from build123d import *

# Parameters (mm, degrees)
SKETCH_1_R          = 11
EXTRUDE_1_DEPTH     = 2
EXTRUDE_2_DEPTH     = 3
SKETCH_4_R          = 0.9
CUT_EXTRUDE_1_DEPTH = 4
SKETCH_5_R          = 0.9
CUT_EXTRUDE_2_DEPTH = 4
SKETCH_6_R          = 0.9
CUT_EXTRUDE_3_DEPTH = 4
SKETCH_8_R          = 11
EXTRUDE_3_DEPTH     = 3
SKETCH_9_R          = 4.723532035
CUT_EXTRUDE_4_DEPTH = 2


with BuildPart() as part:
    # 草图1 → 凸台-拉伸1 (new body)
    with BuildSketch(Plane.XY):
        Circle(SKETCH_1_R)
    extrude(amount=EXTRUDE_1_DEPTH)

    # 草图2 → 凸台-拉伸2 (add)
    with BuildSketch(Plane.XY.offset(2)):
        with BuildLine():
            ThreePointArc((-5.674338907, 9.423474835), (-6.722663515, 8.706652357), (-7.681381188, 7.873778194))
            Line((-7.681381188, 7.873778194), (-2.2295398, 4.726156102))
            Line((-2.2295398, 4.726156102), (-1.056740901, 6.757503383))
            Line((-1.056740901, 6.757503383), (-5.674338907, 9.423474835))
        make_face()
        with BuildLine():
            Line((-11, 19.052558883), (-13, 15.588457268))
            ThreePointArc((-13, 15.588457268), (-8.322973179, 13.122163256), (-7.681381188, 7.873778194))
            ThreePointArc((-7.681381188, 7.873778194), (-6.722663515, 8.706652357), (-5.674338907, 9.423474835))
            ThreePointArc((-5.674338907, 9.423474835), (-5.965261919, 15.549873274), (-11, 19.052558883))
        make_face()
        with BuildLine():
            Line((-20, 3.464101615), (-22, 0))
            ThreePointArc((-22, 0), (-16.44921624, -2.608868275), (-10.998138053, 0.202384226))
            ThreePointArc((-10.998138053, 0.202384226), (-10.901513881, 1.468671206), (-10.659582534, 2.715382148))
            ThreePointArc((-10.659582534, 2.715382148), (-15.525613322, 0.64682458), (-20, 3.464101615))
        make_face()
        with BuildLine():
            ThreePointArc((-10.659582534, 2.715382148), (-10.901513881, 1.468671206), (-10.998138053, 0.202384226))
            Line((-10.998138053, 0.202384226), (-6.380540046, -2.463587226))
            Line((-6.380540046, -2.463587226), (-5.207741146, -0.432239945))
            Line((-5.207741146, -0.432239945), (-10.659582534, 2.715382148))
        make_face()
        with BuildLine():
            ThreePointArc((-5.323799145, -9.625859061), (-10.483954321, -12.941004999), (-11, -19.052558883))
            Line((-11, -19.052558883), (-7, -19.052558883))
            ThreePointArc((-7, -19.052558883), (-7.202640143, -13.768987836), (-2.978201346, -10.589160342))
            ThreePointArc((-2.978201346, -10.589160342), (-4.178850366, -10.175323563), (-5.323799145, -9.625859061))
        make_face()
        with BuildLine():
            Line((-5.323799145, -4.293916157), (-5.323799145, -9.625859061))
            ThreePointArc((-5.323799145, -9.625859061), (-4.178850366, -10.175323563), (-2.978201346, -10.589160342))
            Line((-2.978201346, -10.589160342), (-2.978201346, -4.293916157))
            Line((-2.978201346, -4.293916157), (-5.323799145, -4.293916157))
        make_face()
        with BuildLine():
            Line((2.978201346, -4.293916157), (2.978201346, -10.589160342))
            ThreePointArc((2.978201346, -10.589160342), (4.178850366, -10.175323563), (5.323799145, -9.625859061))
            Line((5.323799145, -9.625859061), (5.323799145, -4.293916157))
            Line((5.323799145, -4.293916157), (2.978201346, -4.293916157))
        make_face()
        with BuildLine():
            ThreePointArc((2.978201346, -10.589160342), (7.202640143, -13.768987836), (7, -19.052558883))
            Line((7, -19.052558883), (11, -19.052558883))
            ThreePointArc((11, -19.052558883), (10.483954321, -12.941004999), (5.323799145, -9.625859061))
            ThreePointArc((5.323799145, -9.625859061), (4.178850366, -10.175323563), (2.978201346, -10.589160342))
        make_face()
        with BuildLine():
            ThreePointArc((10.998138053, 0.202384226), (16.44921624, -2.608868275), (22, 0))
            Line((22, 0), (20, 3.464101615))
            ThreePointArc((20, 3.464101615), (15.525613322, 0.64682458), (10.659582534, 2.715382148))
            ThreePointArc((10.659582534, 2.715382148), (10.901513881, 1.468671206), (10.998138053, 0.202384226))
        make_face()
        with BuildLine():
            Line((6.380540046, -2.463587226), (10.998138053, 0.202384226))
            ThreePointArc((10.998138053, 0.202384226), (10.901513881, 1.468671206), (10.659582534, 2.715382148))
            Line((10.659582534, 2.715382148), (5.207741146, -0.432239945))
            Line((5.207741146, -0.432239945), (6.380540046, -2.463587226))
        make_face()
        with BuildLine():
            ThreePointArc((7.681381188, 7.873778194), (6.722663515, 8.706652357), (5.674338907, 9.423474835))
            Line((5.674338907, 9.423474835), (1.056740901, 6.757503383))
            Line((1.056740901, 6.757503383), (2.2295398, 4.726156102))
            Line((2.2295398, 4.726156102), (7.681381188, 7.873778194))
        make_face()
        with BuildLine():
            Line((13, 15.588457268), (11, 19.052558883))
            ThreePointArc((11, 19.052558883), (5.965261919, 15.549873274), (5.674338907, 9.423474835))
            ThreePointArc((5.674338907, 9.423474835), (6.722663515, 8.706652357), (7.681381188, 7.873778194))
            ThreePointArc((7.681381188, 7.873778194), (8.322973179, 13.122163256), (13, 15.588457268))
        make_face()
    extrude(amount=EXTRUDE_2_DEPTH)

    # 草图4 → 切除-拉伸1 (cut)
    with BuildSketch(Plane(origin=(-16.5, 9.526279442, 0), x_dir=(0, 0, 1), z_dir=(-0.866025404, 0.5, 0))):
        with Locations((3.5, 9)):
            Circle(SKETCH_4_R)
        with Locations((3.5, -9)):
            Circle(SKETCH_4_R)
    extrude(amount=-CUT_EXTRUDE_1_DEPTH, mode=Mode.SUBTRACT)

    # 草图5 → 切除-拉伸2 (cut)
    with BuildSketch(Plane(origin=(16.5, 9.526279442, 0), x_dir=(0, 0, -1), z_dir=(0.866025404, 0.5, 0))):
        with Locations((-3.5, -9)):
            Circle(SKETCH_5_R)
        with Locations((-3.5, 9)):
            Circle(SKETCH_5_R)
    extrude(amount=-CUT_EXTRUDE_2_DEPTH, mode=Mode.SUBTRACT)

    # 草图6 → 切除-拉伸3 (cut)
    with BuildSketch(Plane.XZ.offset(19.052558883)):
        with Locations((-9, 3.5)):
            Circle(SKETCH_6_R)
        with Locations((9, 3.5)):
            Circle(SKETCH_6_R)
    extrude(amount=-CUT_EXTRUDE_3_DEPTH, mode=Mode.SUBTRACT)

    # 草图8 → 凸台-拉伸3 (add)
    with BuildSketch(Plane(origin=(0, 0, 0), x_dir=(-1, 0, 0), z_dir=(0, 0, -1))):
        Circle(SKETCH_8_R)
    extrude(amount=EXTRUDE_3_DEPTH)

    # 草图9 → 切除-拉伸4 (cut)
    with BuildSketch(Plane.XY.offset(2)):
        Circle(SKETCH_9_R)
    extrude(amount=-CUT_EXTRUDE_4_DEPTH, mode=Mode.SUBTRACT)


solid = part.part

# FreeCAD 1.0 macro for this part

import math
import FreeCAD as App
import Part
import Sketcher
Q = App.Units.Quantity

doc = App.newDocument("Part")
body = doc.addObject("PartDesign::Body", "Body")

sketch1 = body.newObject("Sketcher::SketchObject", "Sketch")
sketch1.AttachmentSupport = (doc.getObject("XY_Plane"), [""])
sketch1.MapMode = "FlatFace"
sketch1.addGeometry(Part.Circle(App.Vector(0, 0, 0), App.Vector(0, 0, 1), 11), False)
sketch1.addConstraint(Sketcher.Constraint("Coincident", 0, 3, -1, 1))
sketch1.addConstraint(Sketcher.Constraint("Diameter", 0, 22.0))
pad1 = body.newObject("PartDesign::Pad", "Pad")
pad1.Profile = sketch1
pad1.Length = 2

sketch2 = body.newObject("Sketcher::SketchObject", "Sketch001")
sketch2.AttachmentSupport = (doc.getObject("XY_Plane"), [""])
sketch2.MapMode = "FlatFace"
sketch2.AttachmentOffset = App.Placement(App.Vector(0, 0, 2), App.Rotation())
sketch2.addGeometry(Part.LineSegment(App.Vector(-7.7, 7.9, 0), App.Vector(-2.2, 4.7, 0)), False)
sketch2.addGeometry(Part.LineSegment(App.Vector(-2.2, 4.7, 0), App.Vector(-1.1, 6.8, 0)), False)
sketch2.addGeometry(Part.LineSegment(App.Vector(-1.1, 6.8, 0), App.Vector(-5.7, 9.4, 0)), False)
sketch2.addGeometry(Part.ArcOfCircle(Part.Circle(App.Vector(-12, 12.2, 0), App.Vector(0, 0, 1), 6.9), math.radians(-24), math.radians(81)), False)
sketch2.addGeometry(Part.LineSegment(App.Vector(-11, 19.1, 0), App.Vector(-13, 15.6, 0)), False)
sketch2.addGeometry(Part.ArcOfCircle(Part.Circle(App.Vector(-13, 9.9, 0), App.Vector(0, 0, 1), 5.7), math.radians(-21), math.radians(90)), False)
sketch2.addGeometry(Part.LineSegment(App.Vector(-20, 3.5, 0), App.Vector(-22, 0, 0)), False)
sketch2.addGeometry(Part.ArcOfCircle(Part.Circle(App.Vector(-16.6, 4.3, 0), App.Vector(0, 0, 1), 6.9), math.radians(-141), math.radians(-36)), False)
sketch2.addGeometry(Part.LineSegment(App.Vector(-11, 0.2, 0), App.Vector(-6.4, -2.5, 0)), False)
sketch2.addGeometry(Part.LineSegment(App.Vector(-6.4, -2.5, 0), App.Vector(-5.2, -0.4, 0)), False)
sketch2.addGeometry(Part.LineSegment(App.Vector(-5.2, -0.4, 0), App.Vector(-10.7, 2.7, 0)), False)
sketch2.addGeometry(Part.ArcOfCircle(Part.Circle(App.Vector(-15.1, 6.3, 0), App.Vector(0, 0, 1), 5.7), math.radians(-150), math.radians(-39)), False)
sketch2.addGeometry(Part.ArcOfCircle(Part.Circle(App.Vector(-4.5, -16.5, 0), App.Vector(0, 0, 1), 6.9), math.radians(96), math.radians(201)), False)
sketch2.addGeometry(Part.LineSegment(App.Vector(-11, -19.1, 0), App.Vector(-7, -19.1, 0)), False)
sketch2.addGeometry(Part.ArcOfCircle(Part.Circle(App.Vector(-2.1, -16.2, 0), App.Vector(0, 0, 1), 5.7), math.radians(99), math.radians(210)), False)
sketch2.addGeometry(Part.LineSegment(App.Vector(-3, -10.6, 0), App.Vector(-3, -4.3, 0)), False)
sketch2.addGeometry(Part.LineSegment(App.Vector(-3, -4.3, 0), App.Vector(-5.3, -4.3, 0)), False)
sketch2.addGeometry(Part.LineSegment(App.Vector(-5.3, -4.3, 0), App.Vector(-5.3, -9.6, 0)), False)
sketch2.addGeometry(Part.LineSegment(App.Vector(3, -4.3, 0), App.Vector(3, -10.6, 0)), False)
sketch2.addGeometry(Part.ArcOfCircle(Part.Circle(App.Vector(2.1, -16.2, 0), App.Vector(0, 0, 1), 5.7), math.radians(-30), math.radians(81)), False)
sketch2.addGeometry(Part.LineSegment(App.Vector(7, -19.1, 0), App.Vector(11, -19.1, 0)), False)
sketch2.addGeometry(Part.ArcOfCircle(Part.Circle(App.Vector(4.5, -16.5, 0), App.Vector(0, 0, 1), 6.9), math.radians(-21), math.radians(84)), False)
sketch2.addGeometry(Part.LineSegment(App.Vector(5.3, -9.6, 0), App.Vector(5.3, -4.3, 0)), False)
sketch2.addGeometry(Part.LineSegment(App.Vector(5.3, -4.3, 0), App.Vector(3, -4.3, 0)), False)
sketch2.addGeometry(Part.ArcOfCircle(Part.Circle(App.Vector(16.6, 4.3, 0), App.Vector(0, 0, 1), 6.9), math.radians(-144), math.radians(-39)), False)
sketch2.addGeometry(Part.LineSegment(App.Vector(22, 0, 0), App.Vector(20, 3.5, 0)), False)
sketch2.addGeometry(Part.ArcOfCircle(Part.Circle(App.Vector(15.1, 6.3, 0), App.Vector(0, 0, 1), 5.7), math.radians(-141), math.radians(-30)), False)
sketch2.addGeometry(Part.LineSegment(App.Vector(10.7, 2.7, 0), App.Vector(5.2, -0.4, 0)), False)
sketch2.addGeometry(Part.LineSegment(App.Vector(5.2, -0.4, 0), App.Vector(6.4, -2.5, 0)), False)
sketch2.addGeometry(Part.LineSegment(App.Vector(6.4, -2.5, 0), App.Vector(11, 0.2, 0)), False)
sketch2.addGeometry(Part.LineSegment(App.Vector(5.7, 9.4, 0), App.Vector(1.1, 6.8, 0)), False)
sketch2.addGeometry(Part.LineSegment(App.Vector(1.1, 6.8, 0), App.Vector(2.2, 4.7, 0)), False)
sketch2.addGeometry(Part.LineSegment(App.Vector(2.2, 4.7, 0), App.Vector(7.7, 7.9, 0)), False)
sketch2.addGeometry(Part.ArcOfCircle(Part.Circle(App.Vector(13, 9.9, 0), App.Vector(0, 0, 1), 5.7), math.radians(90), math.radians(201)), False)
sketch2.addGeometry(Part.LineSegment(App.Vector(13, 15.6, 0), App.Vector(11, 19.1, 0)), False)
sketch2.addGeometry(Part.ArcOfCircle(Part.Circle(App.Vector(12, 12.2, 0), App.Vector(0, 0, 1), 6.9), math.radians(99), math.radians(204)), False)
sketch2.addConstraint(Sketcher.Constraint("Coincident", 0, 2, 1, 1))
sketch2.addConstraint(Sketcher.Constraint("Coincident", 1, 2, 2, 1))
sketch2.addConstraint(Sketcher.Constraint("Coincident", 2, 2, 3, 1))
sketch2.addConstraint(Sketcher.Constraint("Coincident", 3, 2, 4, 1))
sketch2.addConstraint(Sketcher.Constraint("Coincident", 4, 2, 5, 2))
sketch2.addConstraint(Sketcher.Constraint("Coincident", 5, 1, 0, 1))
sketch2.addConstraint(Sketcher.Constraint("Coincident", 6, 2, 7, 1))
sketch2.addConstraint(Sketcher.Constraint("Coincident", 7, 2, 8, 1))
sketch2.addConstraint(Sketcher.Constraint("Coincident", 8, 2, 9, 1))
sketch2.addConstraint(Sketcher.Constraint("Coincident", 9, 2, 10, 1))
sketch2.addConstraint(Sketcher.Constraint("Coincident", 10, 2, 11, 2))
sketch2.addConstraint(Sketcher.Constraint("Coincident", 11, 1, 6, 1))
sketch2.addConstraint(Sketcher.Constraint("Coincident", 12, 2, 13, 1))
sketch2.addConstraint(Sketcher.Constraint("Coincident", 13, 2, 14, 2))
sketch2.addConstraint(Sketcher.Constraint("Coincident", 14, 1, 15, 1))
sketch2.addConstraint(Sketcher.Constraint("Coincident", 15, 2, 16, 1))
sketch2.addConstraint(Sketcher.Constraint("Coincident", 16, 2, 17, 1))
sketch2.addConstraint(Sketcher.Constraint("Coincident", 17, 2, 12, 1))
sketch2.addConstraint(Sketcher.Constraint("Coincident", 18, 2, 19, 2))
sketch2.addConstraint(Sketcher.Constraint("Coincident", 19, 1, 20, 1))
sketch2.addConstraint(Sketcher.Constraint("Coincident", 20, 2, 21, 1))
sketch2.addConstraint(Sketcher.Constraint("Coincident", 21, 2, 22, 1))
sketch2.addConstraint(Sketcher.Constraint("Coincident", 22, 2, 23, 1))
sketch2.addConstraint(Sketcher.Constraint("Coincident", 23, 2, 18, 1))
sketch2.addConstraint(Sketcher.Constraint("Coincident", 24, 2, 25, 1))
sketch2.addConstraint(Sketcher.Constraint("Coincident", 25, 2, 26, 2))
sketch2.addConstraint(Sketcher.Constraint("Coincident", 26, 1, 27, 1))
sketch2.addConstraint(Sketcher.Constraint("Coincident", 27, 2, 28, 1))
sketch2.addConstraint(Sketcher.Constraint("Coincident", 28, 2, 29, 1))
sketch2.addConstraint(Sketcher.Constraint("Coincident", 29, 2, 24, 1))
sketch2.addConstraint(Sketcher.Constraint("Coincident", 30, 2, 31, 1))
sketch2.addConstraint(Sketcher.Constraint("Coincident", 31, 2, 32, 1))
sketch2.addConstraint(Sketcher.Constraint("Coincident", 32, 2, 33, 2))
sketch2.addConstraint(Sketcher.Constraint("Coincident", 33, 1, 34, 1))
sketch2.addConstraint(Sketcher.Constraint("Coincident", 34, 2, 35, 1))
sketch2.addConstraint(Sketcher.Constraint("Coincident", 35, 2, 30, 1))
sketch2.addConstraint(Sketcher.Constraint("Horizontal", 13))
sketch2.addConstraint(Sketcher.Constraint("Vertical", 15))
sketch2.addConstraint(Sketcher.Constraint("Horizontal", 16))
sketch2.addConstraint(Sketcher.Constraint("Vertical", 17))
sketch2.addConstraint(Sketcher.Constraint("Vertical", 18))
sketch2.addConstraint(Sketcher.Constraint("Horizontal", 20))
sketch2.addConstraint(Sketcher.Constraint("Vertical", 22))
sketch2.addConstraint(Sketcher.Constraint("Horizontal", 23))
sketch2.addConstraint(Sketcher.Constraint("Equal", 3, 7))
sketch2.addConstraint(Sketcher.Constraint("Equal", 5, 11))
sketch2.addConstraint(Sketcher.Constraint("Equal", 7, 12))
sketch2.addConstraint(Sketcher.Constraint("Equal", 11, 14))
sketch2.addConstraint(Sketcher.Constraint("Equal", 14, 19))
sketch2.addConstraint(Sketcher.Constraint("Equal", 12, 21))
sketch2.addConstraint(Sketcher.Constraint("Equal", 21, 24))
sketch2.addConstraint(Sketcher.Constraint("Equal", 19, 26))
sketch2.addConstraint(Sketcher.Constraint("Equal", 26, 33))
sketch2.addConstraint(Sketcher.Constraint("Equal", 24, 35))
sketch2.addConstraint(Sketcher.Constraint("Symmetric", 3, 2, 20, 2, -1, 1))
sketch2.addConstraint(Sketcher.Constraint("Symmetric", 6, 2, 24, 2, -1, 1))
sketch2.addConstraint(Sketcher.Constraint("Symmetric", 12, 2, 34, 2, -1, 1))
sketch2.addConstraint(Sketcher.Constraint("Symmetric", 14, 3, 19, 3, -2))
sketch2.addConstraint(Sketcher.Constraint("Symmetric", 12, 3, 21, 3, -2))
sketch2.addConstraint(Sketcher.Constraint("Symmetric", 7, 3, 24, 3, -2))
sketch2.addConstraint(Sketcher.Constraint("Symmetric", 11, 3, 26, 3, -2))
sketch2.addConstraint(Sketcher.Constraint("Symmetric", 5, 3, 33, 3, -2))
sketch2.addConstraint(Sketcher.Constraint("Symmetric", 3, 3, 35, 3, -2))
sketch2.addConstraint(Sketcher.Constraint("Symmetric", 16, 2, 22, 2, -2))
sketch2.addConstraint(Sketcher.Constraint("Symmetric", 9, 2, 27, 2, -2))
sketch2.addConstraint(Sketcher.Constraint("Symmetric", 8, 2, 28, 2, -2))
sketch2.addConstraint(Sketcher.Constraint("Symmetric", 1, 2, 30, 2, -2))
sketch2.addConstraint(Sketcher.Constraint("Symmetric", 0, 2, 31, 2, -2))
sketch2.addConstraint(Sketcher.Constraint("Perpendicular", 0, 1))
sketch2.addConstraint(Sketcher.Constraint("Perpendicular", 1, 2))
sketch2.addConstraint(Sketcher.Constraint("Perpendicular", 2, 4))
sketch2.addConstraint(Sketcher.Constraint("Parallel", 4, 6))
sketch2.addConstraint(Sketcher.Constraint("Perpendicular", 6, 8))
sketch2.addConstraint(Sketcher.Constraint("Perpendicular", 8, 9))
sketch2.addConstraint(Sketcher.Constraint("Perpendicular", 9, 10))
sketch2.addConstraint(Sketcher.Constraint("Perpendicular", 25, 27))
sketch2.addConstraint(Sketcher.Constraint("Perpendicular", 27, 28))
sketch2.addConstraint(Sketcher.Constraint("Perpendicular", 28, 29))
sketch2.addConstraint(Sketcher.Constraint("Parallel", 29, 30))
sketch2.addConstraint(Sketcher.Constraint("Perpendicular", 31, 32))
sketch2.addConstraint(Sketcher.Constraint("Perpendicular", 32, 34))
sketch2.addConstraint(Sketcher.Constraint("Horizontal", 14, 1, 18, 2))
sketch2.addConstraint(Sketcher.Constraint("Equal", 4, 6))
sketch2.addConstraint(Sketcher.Constraint("Equal", 2, 8))
sketch2.addConstraint(Sketcher.Constraint("Equal", 1, 9))
sketch2.addConstraint(Sketcher.Constraint("Equal", 0, 10))
sketch2.addConstraint(Sketcher.Constraint("DistanceX", 13, 1, 13, 2, 4.0))
sketch2.addConstraint(Sketcher.Constraint("Angle", 0, Q("-30 deg")))
sketch2.addConstraint(Sketcher.Constraint("Distance", 4, 4.0))
sketch2.addConstraint(Sketcher.Constraint("DistanceX", 3, 2, -1, 1, 11.0))
sketch2.addConstraint(Sketcher.Constraint("DistanceX", 6, 2, -1, 1, 22.0))
sketch2.addConstraint(Sketcher.Constraint("Radius", 3, 6.93915))
sketch2.addConstraint(Sketcher.Constraint("DistanceY", 7, 2, 11, 3, 6.129998))
sketch2.addConstraint(Sketcher.Constraint("Radius", 5, 5.703795))
sketch2.addConstraint(Sketcher.Constraint("DistanceX", 3, 3, 0, 2, 9.807999))
sketch2.addConstraint(Sketcher.Constraint("DistanceX", 8, 2, 0, 2, 4.151))
sketch2.addConstraint(Sketcher.Constraint("DistanceY", 10, 2, 11, 3, 3.617))
sketch2.addConstraint(Sketcher.Constraint("DistanceX", 17, 2, 18, 2, 8.302))
sketch2.addConstraint(Sketcher.Constraint("DistanceX", 14, 1, -1, 1, 2.978201))
sketch2.addConstraint(Sketcher.Constraint("DistanceX", 0, 2, 1, 2, 1.172799))
sketch2.addConstraint(Sketcher.Constraint("DistanceX", 2, 2, 1, 2, 4.617598))
sketch2.addConstraint(Sketcher.Constraint("DistanceY", 13, 2, 14, 1, 8.463399))
sketch2.addConstraint(Sketcher.Constraint("DistanceY", 15, 2, 7, 2, 4.4963))
sketch2.addConstraint(Sketcher.Constraint("DistanceY", 14, 1, 17, 2, 0.963301))
sketch2.addConstraint(Sketcher.Constraint("DistanceY", 15, 1, 15, 2, 6.295244))
sketch2.addConstraint(Sketcher.Constraint("DistanceX", 3, 3, -1, 1, 12.037539))
pad2 = body.newObject("PartDesign::Pad", "Pad001")
pad2.Profile = sketch2
pad2.Length = 3

sketch3 = body.newObject("Sketcher::SketchObject", "Sketch002")
sketch3.Placement = App.Placement(App.Vector(-16.5, 9.526279, 0), App.Rotation(App.Vector(0, 0, 1), App.Vector(0.5, 0.866025404, 0), App.Vector(-0.866025404, 0.5, 0), "ZXY"))
sketch3.addGeometry(Part.Circle(App.Vector(3.5, 9, 0), App.Vector(0, 0, 1), 0.9), False)
sketch3.addGeometry(Part.Circle(App.Vector(3.5, -9, 0), App.Vector(0, 0, 1), 0.9), False)
sketch3.addConstraint(Sketcher.Constraint("Equal", 0, 1))
sketch3.addConstraint(Sketcher.Constraint("Symmetric", 0, 3, 1, 3, -1))
sketch3.addConstraint(Sketcher.Constraint("Diameter", 0, 1.8))
sketch3.addConstraint(Sketcher.Constraint("DistanceY", -1, 1, 0, 3, 9.0))
sketch3.addConstraint(Sketcher.Constraint("DistanceX", -1, 1, 0, 3, 3.5))
pocket1 = body.newObject("PartDesign::Pocket", "Pocket")
pocket1.Profile = sketch3
pocket1.Length = 4

sketch4 = body.newObject("Sketcher::SketchObject", "Sketch003")
sketch4.Placement = App.Placement(App.Vector(16.5, 9.526279, 0), App.Rotation(App.Vector(0, 0, -1), App.Vector(-0.5, 0.866025404, 0), App.Vector(0.866025404, 0.5, 0), "ZXY"))
sketch4.addGeometry(Part.Circle(App.Vector(-3.5, -9, 0), App.Vector(0, 0, 1), 0.9), False)
sketch4.addGeometry(Part.Circle(App.Vector(-3.5, 9, 0), App.Vector(0, 0, 1), 0.9), False)
sketch4.addConstraint(Sketcher.Constraint("Equal", 0, 1))
sketch4.addConstraint(Sketcher.Constraint("Symmetric", 0, 3, 1, 3, -1))
sketch4.addConstraint(Sketcher.Constraint("Diameter", 0, 1.8))
sketch4.addConstraint(Sketcher.Constraint("DistanceY", 0, 3, -1, 1, 9.0))
sketch4.addConstraint(Sketcher.Constraint("DistanceX", 0, 3, -1, 1, 3.5))
pocket2 = body.newObject("PartDesign::Pocket", "Pocket001")
pocket2.Profile = sketch4
pocket2.Length = 4

sketch5 = body.newObject("Sketcher::SketchObject", "Sketch004")
sketch5.AttachmentSupport = (doc.getObject("XZ_Plane"), [""])
sketch5.MapMode = "FlatFace"
sketch5.AttachmentOffset = App.Placement(App.Vector(0, 0, 19.052559), App.Rotation())
sketch5.addGeometry(Part.Circle(App.Vector(-9, 3.5, 0), App.Vector(0, 0, 1), 0.9), False)
sketch5.addGeometry(Part.Circle(App.Vector(9, 3.5, 0), App.Vector(0, 0, 1), 0.9), False)
sketch5.addConstraint(Sketcher.Constraint("Equal", 0, 1))
sketch5.addConstraint(Sketcher.Constraint("Symmetric", 0, 3, 1, 3, -2))
sketch5.addConstraint(Sketcher.Constraint("Diameter", 0, 1.8))
sketch5.addConstraint(Sketcher.Constraint("DistanceX", 0, 3, -1, 1, 9.0))
sketch5.addConstraint(Sketcher.Constraint("DistanceY", -1, 1, 0, 3, 3.5))
pocket3 = body.newObject("PartDesign::Pocket", "Pocket002")
pocket3.Profile = sketch5
pocket3.Length = 4

sketch6 = body.newObject("Sketcher::SketchObject", "Sketch005")
sketch6.AttachmentSupport = (doc.getObject("XY_Plane"), [""])
sketch6.MapMode = "FlatFace"
sketch6.addGeometry(Part.Circle(App.Vector(0, 0, 0), App.Vector(0, 0, 1), 11), False)
sketch6.addConstraint(Sketcher.Constraint("Coincident", 0, 3, -1, 1))
sketch6.addConstraint(Sketcher.Constraint("Diameter", 0, 22.0))
pad3 = body.newObject("PartDesign::Pad", "Pad002")
pad3.Profile = sketch6
pad3.Length = 3
pad3.Reversed = True

sketch7 = body.newObject("Sketcher::SketchObject", "Sketch006")
sketch7.AttachmentSupport = (doc.getObject("XY_Plane"), [""])
sketch7.MapMode = "FlatFace"
sketch7.AttachmentOffset = App.Placement(App.Vector(0, 0, 2), App.Rotation())
sketch7.addGeometry(Part.Circle(App.Vector(0, 0, 0), App.Vector(0, 0, 1), 4.7), False)
sketch7.addConstraint(Sketcher.Constraint("Coincident", 0, 3, -1, 1))
sketch7.addConstraint(Sketcher.Constraint("Diameter", 0, 9.447064))
pocket4 = body.newObject("PartDesign::Pocket", "Pocket003")
pocket4.Profile = sketch7
pocket4.Length = 2

doc.recompute()
